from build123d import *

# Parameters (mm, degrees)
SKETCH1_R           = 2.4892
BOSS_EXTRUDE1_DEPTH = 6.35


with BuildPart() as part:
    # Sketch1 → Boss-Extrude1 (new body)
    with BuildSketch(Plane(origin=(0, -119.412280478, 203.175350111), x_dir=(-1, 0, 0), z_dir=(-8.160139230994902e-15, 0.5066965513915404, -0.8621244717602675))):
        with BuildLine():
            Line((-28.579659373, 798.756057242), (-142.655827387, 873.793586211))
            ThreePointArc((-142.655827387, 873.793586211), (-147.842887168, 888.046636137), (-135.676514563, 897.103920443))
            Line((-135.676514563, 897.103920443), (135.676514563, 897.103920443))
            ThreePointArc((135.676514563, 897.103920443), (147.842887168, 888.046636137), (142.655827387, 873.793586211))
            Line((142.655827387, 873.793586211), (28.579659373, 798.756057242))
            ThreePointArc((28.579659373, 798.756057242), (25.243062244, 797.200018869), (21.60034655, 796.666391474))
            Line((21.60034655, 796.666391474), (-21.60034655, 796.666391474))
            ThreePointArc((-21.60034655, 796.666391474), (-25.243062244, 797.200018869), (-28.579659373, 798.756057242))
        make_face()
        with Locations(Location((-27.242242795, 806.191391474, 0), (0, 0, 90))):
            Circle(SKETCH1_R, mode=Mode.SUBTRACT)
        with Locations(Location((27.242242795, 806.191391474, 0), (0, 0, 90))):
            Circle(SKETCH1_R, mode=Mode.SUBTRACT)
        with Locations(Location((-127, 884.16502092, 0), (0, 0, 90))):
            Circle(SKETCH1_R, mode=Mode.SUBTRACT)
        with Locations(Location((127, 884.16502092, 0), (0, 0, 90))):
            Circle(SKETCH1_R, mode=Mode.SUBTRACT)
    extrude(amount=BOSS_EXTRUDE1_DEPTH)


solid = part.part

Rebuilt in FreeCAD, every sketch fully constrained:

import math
import FreeCAD as App
import Part
import Sketcher
Q = App.Units.Quantity

doc = App.newDocument("Part")
body = doc.addObject("PartDesign::Body", "Body")

sketch1 = body.newObject("Sketcher::SketchObject", "Sketch")
sketch1.Placement = App.Placement(App.Vector(0, -119.41228, 203.17535), App.Rotation(App.Vector(-1, 0, 0), App.Vector(0, 0.862124472, 0.506696551), App.Vector(0, 0.506696551, -0.862124472), "ZXY"))
sketch1.addGeometry(Part.LineSegment(App.Vector(-142.7, 873.8, 0), App.Vector(-28.6, 798.8, 0)), False)
sketch1.addGeometry(Part.ArcOfCircle(Part.Circle(App.Vector(-21.6, 809.4, 0), App.Vector(0, 0, 1), 12.7), math.radians(-123), math.radians(-90)), False)
sketch1.addGeometry(Part.LineSegment(App.Vector(-21.6, 796.7, 0), App.Vector(21.6, 796.7, 0)), False)
sketch1.addGeometry(Part.ArcOfCircle(Part.Circle(App.Vector(21.6, 809.4, 0), App.Vector(0, 0, 1), 12.7), math.radians(-90), math.radians(-57)), False)
sketch1.addGeometry(Part.LineSegment(App.Vector(28.6, 798.8, 0), App.Vector(142.7, 873.8, 0)), False)
sketch1.addGeometry(Part.ArcOfCircle(Part.Circle(App.Vector(135.7, 884.4, 0), App.Vector(0, 0, 1), 12.7), math.radians(-57), math.radians(90)), False)
sketch1.addGeometry(Part.LineSegment(App.Vector(135.7, 897.1, 0), App.Vector(-135.7, 897.1, 0)), False)
sketch1.addGeometry(Part.ArcOfCircle(Part.Circle(App.Vector(-135.7, 884.4, 0), App.Vector(0, 0, 1), 12.7), math.radians(90), math.radians(237)), False)
sketch1.addGeometry(Part.Circle(App.Vector(27.2, 806.2, 0), App.Vector(0, 0, 1), 2.5), False)
sketch1.addGeometry(Part.Circle(App.Vector(-27.2, 806.2, 0), App.Vector(0, 0, 1), 2.5), False)
sketch1.addGeometry(Part.Circle(App.Vector(127, 884.2, 0), App.Vector(0, 0, 1), 2.5), False)
sketch1.addGeometry(Part.Circle(App.Vector(-127, 884.2, 0), App.Vector(0, 0, 1), 2.5), False)
sketch1.addConstraint(Sketcher.Constraint("Tangent", 0, 2, 1, 1))
sketch1.addConstraint(Sketcher.Constraint("Tangent", 1, 2, 2, 1))
sketch1.addConstraint(Sketcher.Constraint("Tangent", 2, 2, 3, 1))
sketch1.addConstraint(Sketcher.Constraint("Tangent", 3, 2, 4, 1))
sketch1.addConstraint(Sketcher.Constraint("Tangent", 4, 2, 5, 1))
sketch1.addConstraint(Sketcher.Constraint("Tangent", 5, 2, 6, 1))
sketch1.addConstraint(Sketcher.Constraint("Tangent", 6, 2, 7, 1))
sketch1.addConstraint(Sketcher.Constraint("Tangent", 7, 2, 0, 1))
sketch1.addConstraint(Sketcher.Constraint("Horizontal", 2))
sketch1.addConstraint(Sketcher.Constraint("Horizontal", 6))
sketch1.addConstraint(Sketcher.Constraint("Equal", 1, 3))
sketch1.addConstraint(Sketcher.Constraint("Equal", 3, 5))
sketch1.addConstraint(Sketcher.Constraint("Equal", 5, 7))
sketch1.addConstraint(Sketcher.Constraint("Equal", 8, 9))
sketch1.addConstraint(Sketcher.Constraint("Equal", 9, 10))
sketch1.addConstraint(Sketcher.Constraint("Equal", 10, 11))
sketch1.addConstraint(Sketcher.Constraint("Symmetric", 8, 3, 9, 3, -2))
sketch1.addConstraint(Sketcher.Constraint("Symmetric", 10, 3, 11, 3, -2))
sketch1.addConstraint(Sketcher.Constraint("Symmetric", 0, 2, 3, 2, -2))
sketch1.addConstraint(Sketcher.Constraint("Radius", 1, Q("0.5 in")))
sketch1.addConstraint(Sketcher.Constraint("Diameter", 8, Q("0.196 in")))
sketch1.addConstraint(Sketcher.Constraint("DistanceX", -1, 1, 10, 3, Q("5 in")))
sketch1.addConstraint(Sketcher.Constraint("DistanceY", 8, 3, 3, 3, Q("0.125 in")))
sketch1.addConstraint(Sketcher.Constraint("DistanceX", 6, 2, 6, 1, 271.353029))
sketch1.addConstraint(Sketcher.Constraint("DistanceY", 10, 3, 5, 3, 0.2389))
sketch1.addConstraint(Sketcher.Constraint("DistanceX", 2, 1, 2, 2, 43.200693))
sketch1.addConstraint(Sketcher.Constraint("DistanceY", -1, 1, 1, 3, 809.366391))
sketch1.addConstraint(Sketcher.Constraint("DistanceY", -1, 1, 5, 3, 884.40392))
sketch1.addConstraint(Sketcher.Constraint("DistanceX", 1, 3, 8, 3, 48.842589))
pad1 = body.newObject("PartDesign::Pad", "Pad")
pad1.Profile = sketch1
pad1.Length = Q("0.25 in")

doc.recompute()
